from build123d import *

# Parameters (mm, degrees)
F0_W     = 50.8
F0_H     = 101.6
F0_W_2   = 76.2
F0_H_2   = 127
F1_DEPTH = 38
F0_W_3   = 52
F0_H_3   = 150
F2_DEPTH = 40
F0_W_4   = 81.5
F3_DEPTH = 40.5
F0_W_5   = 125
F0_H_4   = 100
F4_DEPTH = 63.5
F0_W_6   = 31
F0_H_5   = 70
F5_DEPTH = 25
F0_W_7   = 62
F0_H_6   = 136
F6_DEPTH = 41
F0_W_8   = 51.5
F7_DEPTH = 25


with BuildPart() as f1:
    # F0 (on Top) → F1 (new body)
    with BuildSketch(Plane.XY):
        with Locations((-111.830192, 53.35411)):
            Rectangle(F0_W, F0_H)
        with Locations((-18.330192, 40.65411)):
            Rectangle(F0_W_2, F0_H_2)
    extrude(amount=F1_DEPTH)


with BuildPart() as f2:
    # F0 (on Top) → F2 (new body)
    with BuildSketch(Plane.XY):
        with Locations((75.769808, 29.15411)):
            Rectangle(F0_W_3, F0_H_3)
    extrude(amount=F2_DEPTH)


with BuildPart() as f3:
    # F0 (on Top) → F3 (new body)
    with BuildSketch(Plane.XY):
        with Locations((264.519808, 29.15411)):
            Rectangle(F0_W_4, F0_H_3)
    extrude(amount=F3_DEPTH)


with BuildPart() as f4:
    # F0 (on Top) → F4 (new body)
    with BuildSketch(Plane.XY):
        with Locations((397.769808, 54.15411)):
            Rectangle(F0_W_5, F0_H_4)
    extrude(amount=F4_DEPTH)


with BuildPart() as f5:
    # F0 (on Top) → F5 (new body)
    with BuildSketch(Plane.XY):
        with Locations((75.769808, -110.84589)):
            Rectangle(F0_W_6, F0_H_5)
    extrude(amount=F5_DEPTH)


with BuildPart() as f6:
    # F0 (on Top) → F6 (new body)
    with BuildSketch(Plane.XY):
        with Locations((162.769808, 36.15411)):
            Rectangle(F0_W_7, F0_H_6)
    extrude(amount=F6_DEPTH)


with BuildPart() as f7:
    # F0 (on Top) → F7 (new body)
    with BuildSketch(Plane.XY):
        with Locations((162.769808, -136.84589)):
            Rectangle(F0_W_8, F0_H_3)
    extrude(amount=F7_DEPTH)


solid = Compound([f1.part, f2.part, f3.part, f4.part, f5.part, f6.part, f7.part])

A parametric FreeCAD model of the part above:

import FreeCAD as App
import Part
import Sketcher

V = App.Vector
Q = App.Units.Quantity

doc = App.newDocument("Part")
body = doc.addObject("PartDesign::Body", "Body")
body.AllowCompound = True

# Sketch on XY plane
sketch1 = body.newObject("Sketcher::SketchObject", "Sketch")
sketch1.AttachmentSupport = (doc.getObject("XY_Plane"), [""])
sketch1.MapMode = "FlatFace"
sketch1.addGeometry(Part.LineSegment(V(-137, 104, 0), V(-137, 3, 0)), False)
sketch1.addGeometry(Part.LineSegment(V(-137, 3, 0), V(-86, 3, 0)), False)
sketch1.addGeometry(Part.LineSegment(V(-86, 3, 0), V(-86, 104, 0)), False)
sketch1.addGeometry(Part.LineSegment(V(-86, 104, 0), V(-137, 104, 0)), False)
sketch1.addGeometry(Part.LineSegment(V(-56, 104, 0), V(-56, -23, 0)), False)
sketch1.addGeometry(Part.LineSegment(V(-56, -23, 0), V(20, -23, 0)), False)
sketch1.addGeometry(Part.LineSegment(V(20, -23, 0), V(20, 104, 0)), False)
sketch1.addGeometry(Part.LineSegment(V(20, 104, 0), V(-56, 104, 0)), False)
sketch1.addConstraint(Sketcher.Constraint("Coincident", 0, 2, 1, 1))
sketch1.addConstraint(Sketcher.Constraint("Coincident", 1, 2, 2, 1))
sketch1.addConstraint(Sketcher.Constraint("Coincident", 2, 2, 3, 1))
sketch1.addConstraint(Sketcher.Constraint("Coincident", 3, 2, 0, 1))
sketch1.addConstraint(Sketcher.Constraint("Coincident", 4, 2, 5, 1))
sketch1.addConstraint(Sketcher.Constraint("Coincident", 5, 2, 6, 1))
sketch1.addConstraint(Sketcher.Constraint("Coincident", 6, 2, 7, 1))
sketch1.addConstraint(Sketcher.Constraint("Coincident", 7, 2, 4, 1))
sketch1.addConstraint(Sketcher.Constraint("Vertical", 0))
sketch1.addConstraint(Sketcher.Constraint("Horizontal", 1))
sketch1.addConstraint(Sketcher.Constraint("Vertical", 2))
sketch1.addConstraint(Sketcher.Constraint("Horizontal", 3))
sketch1.addConstraint(Sketcher.Constraint("Vertical", 4))
sketch1.addConstraint(Sketcher.Constraint("Horizontal", 5))
sketch1.addConstraint(Sketcher.Constraint("Vertical", 6))
sketch1.addConstraint(Sketcher.Constraint("Horizontal", 7))
sketch1.addConstraint(Sketcher.Constraint("Horizontal", 3, 2, 6, 2))
sketch1.addConstraint(Sketcher.Constraint("DistanceY", 4, 2, 4, 1, Q("127 mm")))
sketch1.addConstraint(Sketcher.Constraint("DistanceX", 1, 1, 1, 2, Q("50.8 mm")))
sketch1.addConstraint(Sketcher.Constraint("DistanceX", 5, 1, 5, 2, Q("76.2 mm")))
sketch1.addConstraint(Sketcher.Constraint("DistanceY", 0, 2, 0, 1, Q("101.6 mm")))
sketch1.addConstraint(Sketcher.Constraint("DistanceX", 1, 2, 4, 2, Q("30 mm")))
sketch1.addConstraint(Sketcher.Constraint("DistanceX", 0, 2, -1, 1, Q("137.230192 mm")))
sketch1.addConstraint(Sketcher.Constraint("DistanceY", -1, 1, 0, 2, Q("2.55411 mm")))
pad1 = body.newObject("PartDesign::Pad", "Pad")
pad1.Profile = sketch1
pad1.Length = 38
body2 = doc.addObject("PartDesign::Body", "Body001")

# Sketch on XY plane
sketch2 = body2.newObject("Sketcher::SketchObject", "Sketch001")
sketch2.AttachmentSupport = (doc.getObject("XY_Plane001"), [""])
sketch2.MapMode = "FlatFace"
sketch2.addGeometry(Part.LineSegment(V(50, 104, 0), V(50, -46, 0)), False)
sketch2.addGeometry(Part.LineSegment(V(50, -46, 0), V(102, -46, 0)), False)
sketch2.addGeometry(Part.LineSegment(V(102, -46, 0), V(102, 104, 0)), False)
sketch2.addGeometry(Part.LineSegment(V(102, 104, 0), V(50, 104, 0)), False)
sketch2.addConstraint(Sketcher.Constraint("Coincident", 0, 2, 1, 1))
sketch2.addConstraint(Sketcher.Constraint("Coincident", 1, 2, 2, 1))
sketch2.addConstraint(Sketcher.Constraint("Coincident", 2, 2, 3, 1))
sketch2.addConstraint(Sketcher.Constraint("Coincident", 3, 2, 0, 1))
sketch2.addConstraint(Sketcher.Constraint("Vertical", 0))
sketch2.addConstraint(Sketcher.Constraint("Horizontal", 1))
sketch2.addConstraint(Sketcher.Constraint("Vertical", 2))
sketch2.addConstraint(Sketcher.Constraint("Horizontal", 3))
sketch2.addConstraint(Sketcher.Constraint("DistanceX", 1, 1, 1, 2, Q("52 mm")))
sketch2.addConstraint(Sketcher.Constraint("DistanceY", 0, 2, 0, 1, Q("150 mm")))
sketch2.addConstraint(Sketcher.Constraint("DistanceY", 0, 2, -1, 1, Q("45.84589 mm")))
sketch2.addConstraint(Sketcher.Constraint("DistanceX", -1, 1, 0, 2, Q("49.769808 mm")))
pad2 = body2.newObject("PartDesign::Pad", "Pad001")
pad2.Profile = sketch2
pad2.Length = 40
body3 = doc.addObject("PartDesign::Body", "Body002")

# Sketch on XY plane
sketch3 = body3.newObject("Sketcher::SketchObject", "Sketch002")
sketch3.AttachmentSupport = (doc.getObject("XY_Plane002"), [""])
sketch3.MapMode = "FlatFace"
sketch3.addGeometry(Part.LineSegment(V(224, 104, 0), V(224, -46, 0)), False)
sketch3.addGeometry(Part.LineSegment(V(224, -46, 0), V(305, -46, 0)), False)
sketch3.addGeometry(Part.LineSegment(V(305, -46, 0), V(305, 104, 0)), False)
sketch3.addGeometry(Part.LineSegment(V(305, 104, 0), V(224, 104, 0)), False)
sketch3.addConstraint(Sketcher.Constraint("Coincident", 0, 2, 1, 1))
sketch3.addConstraint(Sketcher.Constraint("Coincident", 1, 2, 2, 1))
sketch3.addConstraint(Sketcher.Constraint("Coincident", 2, 2, 3, 1))
sketch3.addConstraint(Sketcher.Constraint("Coincident", 3, 2, 0, 1))
sketch3.addConstraint(Sketcher.Constraint("Vertical", 0))
sketch3.addConstraint(Sketcher.Constraint("Horizontal", 1))
sketch3.addConstraint(Sketcher.Constraint("Vertical", 2))
sketch3.addConstraint(Sketcher.Constraint("Horizontal", 3))
sketch3.addConstraint(Sketcher.Constraint("DistanceY", 0, 2, 0, 1, Q("150 mm")))
sketch3.addConstraint(Sketcher.Constraint("DistanceX", 1, 1, 1, 2, Q("81.5 mm")))
sketch3.addConstraint(Sketcher.Constraint("DistanceX", -1, 1, 0, 2, Q("223.769808 mm")))
sketch3.addConstraint(Sketcher.Constraint("DistanceY", 0, 2, -1, 1, Q("45.84589 mm")))
pad3 = body3.newObject("PartDesign::Pad", "Pad002")
pad3.Profile = sketch3
pad3.Length = 40.5
body4 = doc.addObject("PartDesign::Body", "Body003")

# Sketch on XY plane
sketch4 = body4.newObject("Sketcher::SketchObject", "Sketch003")
sketch4.AttachmentSupport = (doc.getObject("XY_Plane003"), [""])
sketch4.MapMode = "FlatFace"
sketch4.addGeometry(Part.LineSegment(V(335, 104, 0), V(335, 4, 0)), False)
sketch4.addGeometry(Part.LineSegment(V(335, 4, 0), V(460, 4, 0)), False)
sketch4.addGeometry(Part.LineSegment(V(460, 4, 0), V(460, 104, 0)), False)
sketch4.addGeometry(Part.LineSegment(V(460, 104, 0), V(335, 104, 0)), False)
sketch4.addConstraint(Sketcher.Constraint("Coincident", 0, 2, 1, 1))
sketch4.addConstraint(Sketcher.Constraint("Coincident", 1, 2, 2, 1))
sketch4.addConstraint(Sketcher.Constraint("Coincident", 2, 2, 3, 1))
sketch4.addConstraint(Sketcher.Constraint("Coincident", 3, 2, 0, 1))
sketch4.addConstraint(Sketcher.Constraint("Vertical", 0))
sketch4.addConstraint(Sketcher.Constraint("Horizontal", 1))
sketch4.addConstraint(Sketcher.Constraint("Vertical", 2))
sketch4.addConstraint(Sketcher.Constraint("Horizontal", 3))
sketch4.addConstraint(Sketcher.Constraint("DistanceX", 1, 1, 1, 2, Q("125 mm")))
sketch4.addConstraint(Sketcher.Constraint("DistanceY", 0, 2, 0, 1, Q("100 mm")))
sketch4.addConstraint(Sketcher.Constraint("DistanceX", -1, 1, 0, 2, Q("335.269808 mm")))
sketch4.addConstraint(Sketcher.Constraint("DistanceY", -1, 1, 0, 2, Q("4.15411 mm")))
pad4 = body4.newObject("PartDesign::Pad", "Pad003")
pad4.Profile = sketch4
pad4.Length = 63.5
body5 = doc.addObject("PartDesign::Body", "Body004")

# Sketch on XY plane
sketch5 = body5.newObject("Sketcher::SketchObject", "Sketch004")
sketch5.AttachmentSupport = (doc.getObject("XY_Plane004"), [""])
sketch5.MapMode = "FlatFace"
sketch5.addGeometry(Part.LineSegment(V(60, -76, 0), V(60, -146, 0)), False)
sketch5.addGeometry(Part.LineSegment(V(60, -146, 0), V(91, -146, 0)), False)
sketch5.addGeometry(Part.LineSegment(V(91, -146, 0), V(91, -76, 0)), False)
sketch5.addGeometry(Part.LineSegment(V(91, -76, 0), V(60, -76, 0)), False)
sketch5.addConstraint(Sketcher.Constraint("Coincident", 0, 2, 1, 1))
sketch5.addConstraint(Sketcher.Constraint("Coincident", 1, 2, 2, 1))
sketch5.addConstraint(Sketcher.Constraint("Coincident", 2, 2, 3, 1))
sketch5.addConstraint(Sketcher.Constraint("Coincident", 3, 2, 0, 1))
sketch5.addConstraint(Sketcher.Constraint("Vertical", 0))
sketch5.addConstraint(Sketcher.Constraint("Horizontal", 1))
sketch5.addConstraint(Sketcher.Constraint("Vertical", 2))
sketch5.addConstraint(Sketcher.Constraint("Horizontal", 3))
sketch5.addConstraint(Sketcher.Constraint("DistanceX", 1, 1, 1, 2, Q("31 mm")))
sketch5.addConstraint(Sketcher.Constraint("DistanceY", 0, 2, 0, 1, Q("70 mm")))
sketch5.addConstraint(Sketcher.Constraint("DistanceY", 0, 2, -1, 1, Q("145.84589 mm")))
sketch5.addConstraint(Sketcher.Constraint("DistanceX", -1, 1, 0, 2, Q("60.269808 mm")))
pad5 = body5.newObject("PartDesign::Pad", "Pad004")
pad5.Profile = sketch5
pad5.Length = 25
body6 = doc.addObject("PartDesign::Body", "Body005")

# Sketch on XY plane
sketch6 = body6.newObject("Sketcher::SketchObject", "Sketch005")
sketch6.AttachmentSupport = (doc.getObject("XY_Plane005"), [""])
sketch6.MapMode = "FlatFace"
sketch6.addGeometry(Part.LineSegment(V(132, 104, 0), V(132, -32, 0)), False)
sketch6.addGeometry(Part.LineSegment(V(132, -32, 0), V(194, -32, 0)), False)
sketch6.addGeometry(Part.LineSegment(V(194, -32, 0), V(194, 104, 0)), False)
sketch6.addGeometry(Part.LineSegment(V(194, 104, 0), V(132, 104, 0)), False)
sketch6.addConstraint(Sketcher.Constraint("Coincident", 0, 2, 1, 1))
sketch6.addConstraint(Sketcher.Constraint("Coincident", 1, 2, 2, 1))
sketch6.addConstraint(Sketcher.Constraint("Coincident", 2, 2, 3, 1))
sketch6.addConstraint(Sketcher.Constraint("Coincident", 3, 2, 0, 1))
sketch6.addConstraint(Sketcher.Constraint("Vertical", 0))
sketch6.addConstraint(Sketcher.Constraint("Horizontal", 1))
sketch6.addConstraint(Sketcher.Constraint("Vertical", 2))
sketch6.addConstraint(Sketcher.Constraint("Horizontal", 3))
sketch6.addConstraint(Sketcher.Constraint("DistanceX", 1, 1, 1, 2, Q("62 mm")))
sketch6.addConstraint(Sketcher.Constraint("DistanceY", 0, 2, 0, 1, Q("136 mm")))
sketch6.addConstraint(Sketcher.Constraint("DistanceX", -1, 1, 0, 2, Q("131.769808 mm")))
sketch6.addConstraint(Sketcher.Constraint("DistanceY", 0, 2, -1, 1, Q("31.84589 mm")))
pad6 = body6.newObject("PartDesign::Pad", "Pad005")
pad6.Profile = sketch6
pad6.Length = 41
body7 = doc.addObject("PartDesign::Body", "Body006")

# Sketch on XY plane
sketch7 = body7.newObject("Sketcher::SketchObject", "Sketch006")
sketch7.AttachmentSupport = (doc.getObject("XY_Plane006"), [""])
sketch7.MapMode = "FlatFace"
sketch7.addGeometry(Part.LineSegment(V(137, -62, 0), V(137, -212, 0)), False)
sketch7.addGeometry(Part.LineSegment(V(137, -212, 0), V(189, -212, 0)), False)
sketch7.addGeometry(Part.LineSegment(V(189, -212, 0), V(189, -62, 0)), False)
sketch7.addGeometry(Part.LineSegment(V(189, -62, 0), V(137, -62, 0)), False)
sketch7.addConstraint(Sketcher.Constraint("Coincident", 0, 2, 1, 1))
sketch7.addConstraint(Sketcher.Constraint("Coincident", 1, 2, 2, 1))
sketch7.addConstraint(Sketcher.Constraint("Coincident", 2, 2, 3, 1))
sketch7.addConstraint(Sketcher.Constraint("Coincident", 3, 2, 0, 1))
sketch7.addConstraint(Sketcher.Constraint("Vertical", 0))
sketch7.addConstraint(Sketcher.Constraint("Horizontal", 1))
sketch7.addConstraint(Sketcher.Constraint("Vertical", 2))
sketch7.addConstraint(Sketcher.Constraint("Horizontal", 3))
sketch7.addConstraint(Sketcher.Constraint("DistanceY", 0, 2, 0, 1, Q("150 mm")))
sketch7.addConstraint(Sketcher.Constraint("DistanceX", 1, 1, 1, 2, Q("51.5 mm")))
sketch7.addConstraint(Sketcher.Constraint("DistanceX", -1, 1, 0, 2, Q("137.019808 mm")))
sketch7.addConstraint(Sketcher.Constraint("DistanceY", 0, 2, -1, 1, Q("211.84589 mm")))
pad7 = body7.newObject("PartDesign::Pad", "Pad006")
pad7.Profile = sketch7
pad7.Length = 25

doc.recompute()
